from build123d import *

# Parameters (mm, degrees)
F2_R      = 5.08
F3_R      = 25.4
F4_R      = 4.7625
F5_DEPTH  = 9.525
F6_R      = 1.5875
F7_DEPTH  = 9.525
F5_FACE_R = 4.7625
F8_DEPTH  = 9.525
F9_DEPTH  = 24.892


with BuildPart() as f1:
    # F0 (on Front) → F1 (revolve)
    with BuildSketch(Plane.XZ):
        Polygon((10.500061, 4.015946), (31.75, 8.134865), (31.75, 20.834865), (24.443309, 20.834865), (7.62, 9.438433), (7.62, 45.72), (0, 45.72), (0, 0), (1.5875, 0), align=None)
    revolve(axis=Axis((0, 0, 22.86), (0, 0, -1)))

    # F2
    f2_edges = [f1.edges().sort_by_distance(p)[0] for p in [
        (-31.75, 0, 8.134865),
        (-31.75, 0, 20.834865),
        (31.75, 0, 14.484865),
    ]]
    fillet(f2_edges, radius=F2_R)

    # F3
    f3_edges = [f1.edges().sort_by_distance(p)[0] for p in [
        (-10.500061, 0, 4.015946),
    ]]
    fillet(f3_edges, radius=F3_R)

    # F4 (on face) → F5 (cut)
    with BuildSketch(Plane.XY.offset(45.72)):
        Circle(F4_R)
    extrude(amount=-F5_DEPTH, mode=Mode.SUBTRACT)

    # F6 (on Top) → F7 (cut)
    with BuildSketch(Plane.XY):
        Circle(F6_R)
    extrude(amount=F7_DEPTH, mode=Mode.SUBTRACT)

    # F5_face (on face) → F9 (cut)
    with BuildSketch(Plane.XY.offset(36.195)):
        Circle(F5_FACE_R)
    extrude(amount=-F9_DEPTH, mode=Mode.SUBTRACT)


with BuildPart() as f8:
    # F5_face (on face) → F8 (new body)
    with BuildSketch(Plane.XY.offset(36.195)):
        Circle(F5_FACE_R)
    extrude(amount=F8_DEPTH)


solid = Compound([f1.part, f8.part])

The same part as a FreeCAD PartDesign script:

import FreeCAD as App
import Part
import Sketcher

V = App.Vector
Q = App.Units.Quantity


def edges_at(feature, points):
    """Names of the edges that pass closest to the given points."""
    edges = feature.Shape.Edges
    near = lambda p: min(range(len(edges)), key=lambda i: edges[i].distToShape(Part.Vertex(*p))[0])
    return sorted({f"Edge{near(p) + 1}" for p in points})


def add_polygon(sketch, points):
    """Adds a closed chain of lines whose ends are joined by coincident constraints."""
    first, n = sketch.GeometryCount, len(points)
    for a, b in zip(points, points[1:] + points[:1]):
        sketch.addGeometry(Part.LineSegment(App.Vector(*a, 0), App.Vector(*b, 0)), False)
    for i in range(n):
        sketch.addConstraint(Sketcher.Constraint("Coincident", first + i, 2, first + (i + 1) % n, 1))

doc = App.newDocument("Part")
body = doc.addObject("PartDesign::Body", "Body")

sketch1 = body.newObject("Sketcher::SketchObject", "Sketch")
sketch1.AttachmentSupport = (doc.getObject("XZ_Plane"), [""])
sketch1.MapMode = "FlatFace"
add_polygon(sketch1, [(10.500061, 4.015946), (31.75, 8.134865), (31.75, 20.834865), (24.443309, 20.834865), (7.62, 9.438433), (7.62, 45.72), (0, 45.72), (0, 0), (1.5875, 0)])
sketch1.addConstraint(Sketcher.Constraint("Vertical", 1))
sketch1.addConstraint(Sketcher.Constraint("Horizontal", 2))
sketch1.addConstraint(Sketcher.Constraint("Vertical", 4))
sketch1.addConstraint(Sketcher.Constraint("Horizontal", 5))
sketch1.addConstraint(Sketcher.Constraint("Vertical", 6))
sketch1.addConstraint(Sketcher.Constraint("Horizontal", 7))
sketch1.addConstraint(Sketcher.Constraint("Coincident", 6, 2, -1, 1))
sketch1.addConstraint(Sketcher.Constraint("DistanceX", 5, 2, 5, 1, Q("0.3 in")))
sketch1.addConstraint(Sketcher.Constraint("DistanceY", 1, 1, 1, 2, Q("0.5 in")))
sketch1.addConstraint(Sketcher.Constraint("DistanceY", 6, 2, 6, 1, Q("1.8 in")))
sketch1.addConstraint(Sketcher.Constraint("Distance", 3, Q("0.8 in")))
sketch1.addConstraint(Sketcher.Constraint("DistanceX", 7, 1, 7, 2, Q("0.0625 in")))
sketch1.addConstraint(Sketcher.Constraint("DistanceX", -1, 1, 0, 2, Q("1.25 in")))
sketch1.addConstraint(Sketcher.Constraint("DistanceX", 2, 2, 2, 1, Q("7.306691 mm")))
sketch1.addConstraint(Sketcher.Constraint("Distance", 8, Q("9.77556 mm")))
sketch1.addConstraint(Sketcher.Constraint("DistanceY", 4, 1, 4, 2, Q("36.281567 mm")))
sketch1.addConstraint(Sketcher.Constraint("DistanceX", -1, 1, 8, 2, Q("10.500061 mm")))
revolution = body.newObject("PartDesign::Revolution", "Revolution")
revolution.Profile = sketch1
revolution.ReferenceAxis = (sketch1, ["V_Axis"])
revolution.Angle = 360
doc.recompute()

fillet = body.newObject("PartDesign::Fillet", "Fillet")
fillet.Base = (revolution, edges_at(revolution, [(-31.75, 0, 8.135), (-31.75, 0, 20.835), (31.75, 0, 14.485)]))
fillet.Radius = Q("0.2 in")
doc.recompute()

fillet2 = body.newObject("PartDesign::Fillet", "Fillet001")
fillet2.Base = (fillet, edges_at(fillet, [(-10.5, 0, 4.016)]))
fillet2.Radius = Q("1 in")

sketch2 = body.newObject("Sketcher::SketchObject", "Sketch001")
sketch2.AttachmentSupport = (doc.getObject("XY_Plane"), [""])
sketch2.MapMode = "FlatFace"
sketch2.AttachmentOffset = App.Placement(V(0, 0, 1.8 * 25.4), App.Rotation())
sketch2.addGeometry(Part.Circle(V(0, 0, 0), V(0, 0, 1), 4.7625), False)
sketch2.addConstraint(Sketcher.Constraint("Coincident", 0, 3, -1, 1))
sketch2.addConstraint(Sketcher.Constraint("Diameter", 0, Q("0.375 in")))
pocket1 = body.newObject("PartDesign::Pocket", "Pocket")
pocket1.Profile = sketch2
pocket1.Length = Q("0.375 in")

sketch3 = body.newObject("Sketcher::SketchObject", "Sketch002")
sketch3.AttachmentSupport = (doc.getObject("XY_Plane"), [""])
sketch3.MapMode = "FlatFace"
sketch3.addGeometry(Part.Circle(V(0, 0, 0), V(0, 0, 1), 1.5875), False)
sketch3.addConstraint(Sketcher.Constraint("Coincident", 0, 3, -1, 1))
sketch3.addConstraint(Sketcher.Constraint("Diameter", 0, Q("0.125 in")))
pocket2 = body.newObject("PartDesign::Pocket", "Pocket001")
pocket2.Profile = sketch3
pocket2.Length = Q("0.375 in")
pocket2.Reversed = True

sketch4 = body.newObject("Sketcher::SketchObject", "Sketch003")
sketch4.AttachmentSupport = (doc.getObject("XY_Plane"), [""])
sketch4.MapMode = "FlatFace"
sketch4.AttachmentOffset = App.Placement(V(0, 0, 1.425 * 25.4), App.Rotation())
sketch4.addGeometry(Part.Circle(V(0, 0, 0), V(0, 0, 1), 4.7625), False)
sketch4.addConstraint(Sketcher.Constraint("Coincident", 0, 3, -1, 1))
sketch4.addConstraint(Sketcher.Constraint("Diameter", 0, Q("0.375 in")))
pocket3 = body.newObject("PartDesign::Pocket", "Pocket002")
pocket3.Profile = sketch4
pocket3.Length = Q("0.98 in")
body2 = doc.addObject("PartDesign::Body", "Body001")

sketch5 = body2.newObject("Sketcher::SketchObject", "Sketch004")
sketch5.AttachmentSupport = (doc.getObject("XY_Plane001"), [""])
sketch5.MapMode = "FlatFace"
sketch5.AttachmentOffset = App.Placement(V(0, 0, 1.425 * 25.4), App.Rotation())
sketch5.addGeometry(Part.Circle(V(0, 0, 0), V(0, 0, 1), 4.7625), False)
sketch5.addConstraint(Sketcher.Constraint("Coincident", 0, 3, -1, 1))
sketch5.addConstraint(Sketcher.Constraint("Diameter", 0, Q("0.375 in")))
pad1 = body2.newObject("PartDesign::Pad", "Pad")
pad1.Profile = sketch5
pad1.Length = Q("0.375 in")

doc.recompute()
